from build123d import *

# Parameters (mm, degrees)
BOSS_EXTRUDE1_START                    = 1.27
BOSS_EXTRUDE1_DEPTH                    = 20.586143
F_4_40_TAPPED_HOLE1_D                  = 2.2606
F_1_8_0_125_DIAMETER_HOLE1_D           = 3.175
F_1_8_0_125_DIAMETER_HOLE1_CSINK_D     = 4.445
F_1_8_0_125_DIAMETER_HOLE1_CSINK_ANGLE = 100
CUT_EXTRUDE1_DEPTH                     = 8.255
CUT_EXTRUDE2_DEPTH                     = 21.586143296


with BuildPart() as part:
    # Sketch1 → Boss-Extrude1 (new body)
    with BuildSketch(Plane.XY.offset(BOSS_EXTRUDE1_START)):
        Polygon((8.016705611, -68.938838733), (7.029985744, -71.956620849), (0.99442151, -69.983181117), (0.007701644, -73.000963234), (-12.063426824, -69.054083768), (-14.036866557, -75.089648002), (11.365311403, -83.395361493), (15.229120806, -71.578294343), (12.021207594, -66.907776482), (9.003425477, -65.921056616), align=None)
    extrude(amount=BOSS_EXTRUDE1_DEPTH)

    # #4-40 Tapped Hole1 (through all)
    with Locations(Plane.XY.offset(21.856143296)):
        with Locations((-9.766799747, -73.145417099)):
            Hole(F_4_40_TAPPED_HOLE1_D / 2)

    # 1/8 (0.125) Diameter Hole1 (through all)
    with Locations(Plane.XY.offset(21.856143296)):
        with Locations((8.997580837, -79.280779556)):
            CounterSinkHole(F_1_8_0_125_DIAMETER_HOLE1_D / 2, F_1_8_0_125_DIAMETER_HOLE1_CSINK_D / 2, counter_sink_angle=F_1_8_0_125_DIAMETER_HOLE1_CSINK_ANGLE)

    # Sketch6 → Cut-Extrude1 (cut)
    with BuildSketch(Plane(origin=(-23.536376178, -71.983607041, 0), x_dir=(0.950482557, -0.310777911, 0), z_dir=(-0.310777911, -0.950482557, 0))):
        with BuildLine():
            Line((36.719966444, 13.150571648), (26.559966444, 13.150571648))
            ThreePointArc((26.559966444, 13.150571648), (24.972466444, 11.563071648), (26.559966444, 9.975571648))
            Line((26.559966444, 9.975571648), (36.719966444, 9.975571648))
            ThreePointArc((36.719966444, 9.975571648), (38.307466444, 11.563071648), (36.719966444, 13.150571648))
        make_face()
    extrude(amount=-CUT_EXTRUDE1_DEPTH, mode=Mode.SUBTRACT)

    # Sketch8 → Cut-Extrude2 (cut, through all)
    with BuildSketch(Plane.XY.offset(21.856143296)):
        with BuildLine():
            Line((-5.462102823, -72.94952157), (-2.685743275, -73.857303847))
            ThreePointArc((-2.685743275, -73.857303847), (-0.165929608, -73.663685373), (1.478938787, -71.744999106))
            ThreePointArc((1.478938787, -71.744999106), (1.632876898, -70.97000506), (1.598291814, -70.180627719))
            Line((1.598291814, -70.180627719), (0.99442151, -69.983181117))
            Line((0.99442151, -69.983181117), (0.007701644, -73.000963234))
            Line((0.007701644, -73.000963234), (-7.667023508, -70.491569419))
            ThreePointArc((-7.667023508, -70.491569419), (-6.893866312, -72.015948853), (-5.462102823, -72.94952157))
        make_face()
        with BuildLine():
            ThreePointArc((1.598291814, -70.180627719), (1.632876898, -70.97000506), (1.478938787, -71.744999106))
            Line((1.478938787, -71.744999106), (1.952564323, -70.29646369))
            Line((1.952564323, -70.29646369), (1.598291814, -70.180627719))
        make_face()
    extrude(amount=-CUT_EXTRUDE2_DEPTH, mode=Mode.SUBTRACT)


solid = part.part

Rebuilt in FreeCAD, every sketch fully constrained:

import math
import FreeCAD as App
import Part
import Sketcher
from FreeCAD import Vector
Q = App.Units.Quantity

doc = App.newDocument("Part")
params = doc.addObject("Spreadsheet::Sheet", "Params")
for row, (alias, value) in enumerate([
    ("sketch1_length", "0.5 in"),
    ("sketch1_length2", "0.25 in"),
    ("sketch1_length3", "0.125 in"),
    ("pad1_length", "20.586143 mm"),
    ("sketch2_diameter", "0.089 in"),
    ("hole_diameter", "0.089 in"),
    ("sketch3_diameter", "0.125 in"),
    ("hole2_diameter", "0.125 in"),
    ("hole2_csink_diameter", "0.175 in"),
    ("sketch4_width", "0.4 in"),
    ("sketch4_radius", "0.0625 in"),
    ("pocket1_length", "0.325 in"),
    ("sketch5_radius", "0.13 in"),
    ("sketch5_length", "0.06 in"),
    ("sketch5_length2", "0.115 in"),
    ("sketch5_length3", "0.125 in"),
], start=1):
    params.set(f"A{row}", alias)
    params.set(f"B{row}", "=" + value)
    params.setAlias(f"B{row}", alias)

body = doc.addObject("PartDesign::Body", "Body")

# Sketch on XY plane
sketch1 = body.newObject("Sketcher::SketchObject", "Sketch")
sketch1.AttachmentSupport = (doc.getObject("XY_Plane"), [""])
sketch1.MapMode = "FlatFace"
sketch1.AttachmentOffset = App.Placement(Vector(0, 0, 0.05 * 25.4), App.Rotation())
sketch1.addGeometry(Part.LineSegment(Vector(8, -68.9, 0), Vector(7, -72, 0)), False)
sketch1.addGeometry(Part.LineSegment(Vector(7, -72, 0), Vector(1, -70, 0)), False)
sketch1.addGeometry(Part.LineSegment(Vector(1, -70, 0), Vector(0, -73, 0)), False)
sketch1.addGeometry(Part.LineSegment(Vector(0, -73, 0), Vector(-12.1, -69.1, 0)), False)
sketch1.addGeometry(Part.LineSegment(Vector(-12.1, -69.1, 0), Vector(-14, -75.1, 0)), False)
sketch1.addGeometry(Part.LineSegment(Vector(-14, -75.1, 0), Vector(11.4, -83.4, 0)), False)
sketch1.addGeometry(Part.LineSegment(Vector(11.4, -83.4, 0), Vector(15.2, -71.6, 0)), False)
sketch1.addGeometry(Part.LineSegment(Vector(15.2, -71.6, 0), Vector(12, -66.9, 0)), False)
sketch1.addGeometry(Part.LineSegment(Vector(12, -66.9, 0), Vector(9, -65.9, 0)), False)
sketch1.addGeometry(Part.LineSegment(Vector(9, -65.9, 0), Vector(8, -68.9, 0)), False)
sketch1.addConstraint(Sketcher.Constraint("Coincident", 0, 2, 1, 1))
sketch1.addConstraint(Sketcher.Constraint("Coincident", 1, 2, 2, 1))
sketch1.addConstraint(Sketcher.Constraint("Coincident", 2, 2, 3, 1))
sketch1.addConstraint(Sketcher.Constraint("Coincident", 3, 2, 4, 1))
sketch1.addConstraint(Sketcher.Constraint("Coincident", 4, 2, 5, 1))
sketch1.addConstraint(Sketcher.Constraint("Coincident", 5, 2, 6, 1))
sketch1.addConstraint(Sketcher.Constraint("Coincident", 6, 2, 7, 1))
sketch1.addConstraint(Sketcher.Constraint("Coincident", 7, 2, 8, 1))
sketch1.addConstraint(Sketcher.Constraint("Coincident", 8, 2, 9, 1))
sketch1.addConstraint(Sketcher.Constraint("Coincident", 9, 2, 0, 1))
sketch1.addConstraint(Sketcher.Constraint("Perpendicular", 0, 1))
sketch1.addConstraint(Sketcher.Constraint("Perpendicular", 1, 2))
sketch1.addConstraint(Sketcher.Constraint("Perpendicular", 2, 3))
sketch1.addConstraint(Sketcher.Constraint("Perpendicular", 3, 4))
sketch1.addConstraint(Sketcher.Constraint("Perpendicular", 4, 5))
sketch1.addConstraint(Sketcher.Constraint("Perpendicular", 5, 6))
sketch1.addConstraint(Sketcher.Constraint("Perpendicular", 6, 8))
sketch1.addConstraint(Sketcher.Constraint("Perpendicular", 8, 9))
sketch1.addConstraint(Sketcher.Constraint("Equal", 0, 2))
sketch1.addConstraint(Sketcher.Constraint("Equal", 1, 4))
sketch1.addConstraint(Sketcher.Constraint("Equal", 2, 8))
sketch1.addConstraint(Sketcher.Constraint("Equal", 8, 9))
sketch1.addConstraint(Sketcher.Constraint("Distance", 3, Q("0.5 in")))
sketch1.addConstraint(Sketcher.Constraint("Distance", 1, Q("0.25 in")))
sketch1.addConstraint(Sketcher.Constraint("Distance", 0, Q("0.125 in")))
sketch1.addConstraint(Sketcher.Constraint("DistanceX", -1, 1, 2, 2, 0.007702))
sketch1.addConstraint(Sketcher.Constraint("DistanceY", 5, 2, 2, 2, 10.394398))
sketch1.addConstraint(Sketcher.Constraint("DistanceX", 1, 2, 6, 2, 14.234699))
sketch1.addConstraint(Sketcher.Constraint("DistanceX", 9, 2, 7, 2, 4.004502))
sketch1.addConstraint(Sketcher.Constraint("DistanceY", 0, 2, -1, 1, 71.956621))
sketch1.setExpression("Constraints[22]", "Params.sketch1_length")
sketch1.setExpression("Constraints[23]", "Params.sketch1_length2")
sketch1.setExpression("Constraints[24]", "Params.sketch1_length3")
pad1 = body.newObject("PartDesign::Pad", "Pad")
pad1.Profile = sketch1
pad1.setExpression("Length", "Params.pad1_length")

# Sketch on XY plane
sketch2 = body.newObject("Sketcher::SketchObject", "Sketch001")
sketch2.AttachmentSupport = (doc.getObject("XY_Plane"), [""])
sketch2.MapMode = "FlatFace"
sketch2.AttachmentOffset = App.Placement(Vector(0, 0, 21.856143), App.Rotation())
sketch2.addGeometry(Part.Circle(Vector(-9.8, -73.1, 0), Vector(0, 0, 1), 1.1), False)
sketch2.addConstraint(Sketcher.Constraint("Diameter", 0, Q("0.089 in")))
sketch2.addConstraint(Sketcher.Constraint("DistanceX", 0, 3, -1, 1, 9.7668))
sketch2.addConstraint(Sketcher.Constraint("DistanceY", 0, 3, -1, 1, 73.145417))
sketch2.setExpression("Constraints[0]", "Params.sketch2_diameter")
doc.recompute()
hole = body.newObject("PartDesign::Hole", "Hole")
hole.Profile = sketch2
hole.ThreadType = "None"
hole.setExpression("Diameter", "Params.hole_diameter")
hole.DepthType = "ThroughAll"

# Sketch on XY plane
sketch3 = body.newObject("Sketcher::SketchObject", "Sketch002")
sketch3.AttachmentSupport = (doc.getObject("XY_Plane"), [""])
sketch3.MapMode = "FlatFace"
sketch3.AttachmentOffset = App.Placement(Vector(0, 0, 21.856143), App.Rotation())
sketch3.addGeometry(Part.Circle(Vector(9, -79.3, 0), Vector(0, 0, 1), 1.6), False)
sketch3.addConstraint(Sketcher.Constraint("Diameter", 0, Q("0.125 in")))
sketch3.addConstraint(Sketcher.Constraint("DistanceX", -1, 1, 0, 3, 8.997581))
sketch3.addConstraint(Sketcher.Constraint("DistanceY", 0, 3, -1, 1, 79.28078))
sketch3.setExpression("Constraints[0]", "Params.sketch3_diameter")
doc.recompute()
hole2 = body.newObject("PartDesign::Hole", "Hole001")
hole2.Profile = sketch3
hole2.ThreadType = "None"
hole2.setExpression("Diameter", "Params.hole2_diameter")
hole2.DepthType = "ThroughAll"
hole2.HoleCutType = "Countersink"
hole2.setExpression("HoleCutDiameter", "Params.hole2_csink_diameter")
hole2.HoleCutCountersinkAngle = 100

# Sketch on an angled plane
sketch4 = body.newObject("Sketcher::SketchObject", "Sketch003")
sketch4.Placement = App.Placement(Vector(-23.536376, -71.983607, 0), App.Rotation(Vector(0.950482556, -0.310777911, 0), Vector(0, 0, 0.999999999), Vector(-0.310777911, -0.950482556, 0), "ZXY"))
sketch4.addGeometry(Part.LineSegment(Vector(36.7, 13.2, 0), Vector(26.6, 13.2, 0)), False)
sketch4.addGeometry(Part.ArcOfCircle(Part.Circle(Vector(26.6, 11.6, 0), Vector(0, 0, 1), 1.6), math.radians(90), math.radians(270)), False)
sketch4.addGeometry(Part.LineSegment(Vector(26.6, 10, 0), Vector(36.7, 10, 0)), False)
sketch4.addGeometry(Part.ArcOfCircle(Part.Circle(Vector(36.7, 11.6, 0), Vector(0, 0, 1), 1.6), math.radians(-90), math.radians(90)), False)
sketch4.addConstraint(Sketcher.Constraint("Tangent", 0, 2, 1, 1))
sketch4.addConstraint(Sketcher.Constraint("Tangent", 1, 2, 2, 1))
sketch4.addConstraint(Sketcher.Constraint("Tangent", 2, 2, 3, 1))
sketch4.addConstraint(Sketcher.Constraint("Tangent", 3, 2, 0, 1))
sketch4.addConstraint(Sketcher.Constraint("Horizontal", 0))
sketch4.addConstraint(Sketcher.Constraint("Horizontal", 2))
sketch4.addConstraint(Sketcher.Constraint("DistanceX", 0, 2, 0, 1, Q("0.4 in")))
sketch4.addConstraint(Sketcher.Constraint("Radius", 1, Q("0.0625 in")))
sketch4.addConstraint(Sketcher.Constraint("DistanceY", -1, 1, 1, 3, 11.563072))
sketch4.addConstraint(Sketcher.Constraint("DistanceX", -1, 1, 1, 3, 26.559966))
sketch4.setExpression("Constraints[6]", "Params.sketch4_width")
sketch4.setExpression("Constraints[7]", "Params.sketch4_radius")
pocket1 = body.newObject("PartDesign::Pocket", "Pocket")
pocket1.Profile = sketch4
pocket1.setExpression("Length", "Params.pocket1_length")

# Sketch on XY plane
sketch5 = body.newObject("Sketcher::SketchObject", "Sketch004")
sketch5.AttachmentSupport = (doc.getObject("XY_Plane"), [""])
sketch5.MapMode = "FlatFace"
sketch5.AttachmentOffset = App.Placement(Vector(0, 0, 21.856143), App.Rotation())
sketch5.addGeometry(Part.LineSegment(Vector(-5.46, -72.95, 0), Vector(-2.69, -73.86, 0)), False)
sketch5.addGeometry(Part.ArcOfCircle(Part.Circle(Vector(-1.66, -70.72, 0), Vector(0, 0, 1), 3.3), math.radians(-108), math.radians(-18)), False)
sketch5.addGeometry(Part.LineSegment(Vector(1.48, -71.74, 0), Vector(1.95, -70.3, 0)), False)
sketch5.addGeometry(Part.LineSegment(Vector(1.95, -70.3, 0), Vector(1.6, -70.18, 0)), False)
sketch5.addGeometry(Part.LineSegment(Vector(1.6, -70.18, 0), Vector(0.99, -69.98, 0)), False)
sketch5.addGeometry(Part.LineSegment(Vector(0.99, -69.98, 0), Vector(0.01, -73, 0)), False)
sketch5.addGeometry(Part.LineSegment(Vector(0.01, -73, 0), Vector(-7.67, -70.49, 0)), False)
sketch5.addGeometry(Part.ArcOfCircle(Part.Circle(Vector(-4.44, -69.81, 0), Vector(0, 0, 1), 3.3), math.radians(-168), math.radians(-108)), False)
sketch5.addConstraint(Sketcher.Constraint("Tangent", 0, 2, 1, 1))
sketch5.addConstraint(Sketcher.Constraint("Tangent", 1, 2, 2, 1))
sketch5.addConstraint(Sketcher.Constraint("Coincident", 2, 2, 3, 1))
sketch5.addConstraint(Sketcher.Constraint("Coincident", 3, 2, 4, 1))
sketch5.addConstraint(Sketcher.Constraint("Coincident", 4, 2, 5, 1))
sketch5.addConstraint(Sketcher.Constraint("Coincident", 5, 2, 6, 1))
sketch5.addConstraint(Sketcher.Constraint("Coincident", 6, 2, 7, 1))
sketch5.addConstraint(Sketcher.Constraint("Tangent", 7, 2, 0, 1))
sketch5.addConstraint(Sketcher.Constraint("Equal", 1, 7))
sketch5.addConstraint(Sketcher.Constraint("Perpendicular", 0, 2))
sketch5.addConstraint(Sketcher.Constraint("Perpendicular", 2, 3))
sketch5.addConstraint(Sketcher.Constraint("Parallel", 3, 4))
sketch5.addConstraint(Sketcher.Constraint("Perpendicular", 4, 5))
sketch5.addConstraint(Sketcher.Constraint("Perpendicular", 5, 6))
sketch5.addConstraint(Sketcher.Constraint("Radius", 1, Q("0.13 in")))
sketch5.addConstraint(Sketcher.Constraint("Distance", 2, Q("0.06 in")))
sketch5.addConstraint(Sketcher.Constraint("Distance", 0, Q("0.115 in")))
sketch5.addConstraint(Sketcher.Constraint("Distance", 5, Q("0.125 in")))
sketch5.addConstraint(Sketcher.Constraint("DistanceY", 1, 2, -1, 1, 71.744999))
sketch5.addConstraint(Sketcher.Constraint("DistanceX", -1, 1, 5, 2, 0.007702))
sketch5.addConstraint(Sketcher.Constraint("DistanceY", 3, 2, 7, 3, 0.3696))
sketch5.addConstraint(Sketcher.Constraint("Distance", 3, 0.372729))
sketch5.addConstraint(Sketcher.Constraint("Distance", 4, 0.63533))
sketch5.setExpression("Constraints[14]", "Params.sketch5_radius")
sketch5.setExpression("Constraints[15]", "Params.sketch5_length")
sketch5.setExpression("Constraints[16]", "Params.sketch5_length2")
sketch5.setExpression("Constraints[17]", "Params.sketch5_length3")
pocket2 = body.newObject("PartDesign::Pocket", "Pocket001")
pocket2.Profile = sketch5
pocket2.Type = "ThroughAll"

doc.recompute()
